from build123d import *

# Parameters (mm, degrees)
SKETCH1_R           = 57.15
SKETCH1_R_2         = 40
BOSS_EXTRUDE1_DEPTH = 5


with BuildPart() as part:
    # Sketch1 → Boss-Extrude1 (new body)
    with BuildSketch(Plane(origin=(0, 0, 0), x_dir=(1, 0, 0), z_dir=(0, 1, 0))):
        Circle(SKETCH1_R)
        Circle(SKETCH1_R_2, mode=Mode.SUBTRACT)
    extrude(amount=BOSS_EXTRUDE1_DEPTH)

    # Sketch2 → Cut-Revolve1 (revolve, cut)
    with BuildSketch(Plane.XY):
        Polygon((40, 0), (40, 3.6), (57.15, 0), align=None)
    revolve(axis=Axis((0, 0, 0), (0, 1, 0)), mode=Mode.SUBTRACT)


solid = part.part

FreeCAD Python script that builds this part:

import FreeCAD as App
import Part
import Sketcher


def add_polygon(sketch, points):
    """Adds a closed chain of lines whose ends are joined by coincident constraints."""
    first, n = sketch.GeometryCount, len(points)
    for a, b in zip(points, points[1:] + points[:1]):
        sketch.addGeometry(Part.LineSegment(App.Vector(*a, 0), App.Vector(*b, 0)), False)
    for i in range(n):
        sketch.addConstraint(Sketcher.Constraint("Coincident", first + i, 2, first + (i + 1) % n, 1))

doc = App.newDocument("Part")
params = doc.addObject("Spreadsheet::Sheet", "Params")
for row, (alias, value) in enumerate([
    ("sketch1_diameter", "80 mm"),
    ("sketch1_diameter2", "114.3 mm"),
    ("pad1_length", "5 mm"),
    ("sketch2_height", "3.6 mm"),
    ("sketch2_width", "17.15 mm"),
    ("groove_angle", "360 deg"),
], start=1):
    params.set(f"A{row}", alias)
    params.set(f"B{row}", "=" + value)
    params.setAlias(f"B{row}", alias)

body = doc.addObject("PartDesign::Body", "Body")

# Sketch on XZ plane
sketch1 = doc.addObject("Sketcher::SketchObject", "Sketch")
body.addObject(sketch1)
sketch1.AttachmentSupport = (doc.XZ_Plane, [""])
sketch1.MapMode = "FlatFace"
sketch1.addGeometry(Part.Circle(App.Vector(0, 0, 0), App.Vector(0, 0, 1), 57), False)
sketch1.addGeometry(Part.Circle(App.Vector(0, 0, 0), App.Vector(0, 0, 1), 40), False)
sketch1.addConstraint(Sketcher.Constraint("Coincident", 0, 3, -1, 1))
sketch1.addConstraint(Sketcher.Constraint("Coincident", 1, 3, -1, 1))
sketch1.addConstraint(Sketcher.Constraint("Diameter", 1, 80.0))
sketch1.addConstraint(Sketcher.Constraint("Diameter", 0, 114.3))
sketch1.setExpression("Constraints[2]", "Params.sketch1_diameter")
sketch1.setExpression("Constraints[3]", "Params.sketch1_diameter2")
pad1 = doc.addObject("PartDesign::Pad", "Pad")
body.addObject(pad1)
pad1.Profile = sketch1
pad1.setExpression("Length", "Params.pad1_length")
pad1.Reversed = True

# Sketch on XY plane
sketch2 = doc.addObject("Sketcher::SketchObject", "Sketch001")
body.addObject(sketch2)
sketch2.AttachmentSupport = (doc.XY_Plane, [""])
sketch2.MapMode = "FlatFace"
add_polygon(sketch2, [(40, 3.6), (40, 0), (57.1, 0)])  # lines 0-2
sketch2.addConstraint(Sketcher.Constraint("Vertical", 0))
sketch2.addConstraint(Sketcher.Constraint("Horizontal", 1))
sketch2.addConstraint(Sketcher.Constraint("PointOnObject", 0, 2, -1))
sketch2.addConstraint(Sketcher.Constraint("DistanceY", 0, 2, 0, 1, 3.6))
sketch2.addConstraint(Sketcher.Constraint("DistanceX", -1, 1, 0, 2, 40.0))
sketch2.addConstraint(Sketcher.Constraint("DistanceX", 1, 1, 1, 2, 17.15))
sketch2.setExpression("Constraints[6]", "Params.sketch2_height")
sketch2.setExpression("Constraints[8]", "Params.sketch2_width")
groove = doc.addObject("PartDesign::Groove", "Groove")
body.addObject(groove)
groove.Profile = sketch2
groove.ReferenceAxis = (sketch2, ["V_Axis"])
groove.setExpression("Angle", "Params.groove_angle")

doc.recompute()
